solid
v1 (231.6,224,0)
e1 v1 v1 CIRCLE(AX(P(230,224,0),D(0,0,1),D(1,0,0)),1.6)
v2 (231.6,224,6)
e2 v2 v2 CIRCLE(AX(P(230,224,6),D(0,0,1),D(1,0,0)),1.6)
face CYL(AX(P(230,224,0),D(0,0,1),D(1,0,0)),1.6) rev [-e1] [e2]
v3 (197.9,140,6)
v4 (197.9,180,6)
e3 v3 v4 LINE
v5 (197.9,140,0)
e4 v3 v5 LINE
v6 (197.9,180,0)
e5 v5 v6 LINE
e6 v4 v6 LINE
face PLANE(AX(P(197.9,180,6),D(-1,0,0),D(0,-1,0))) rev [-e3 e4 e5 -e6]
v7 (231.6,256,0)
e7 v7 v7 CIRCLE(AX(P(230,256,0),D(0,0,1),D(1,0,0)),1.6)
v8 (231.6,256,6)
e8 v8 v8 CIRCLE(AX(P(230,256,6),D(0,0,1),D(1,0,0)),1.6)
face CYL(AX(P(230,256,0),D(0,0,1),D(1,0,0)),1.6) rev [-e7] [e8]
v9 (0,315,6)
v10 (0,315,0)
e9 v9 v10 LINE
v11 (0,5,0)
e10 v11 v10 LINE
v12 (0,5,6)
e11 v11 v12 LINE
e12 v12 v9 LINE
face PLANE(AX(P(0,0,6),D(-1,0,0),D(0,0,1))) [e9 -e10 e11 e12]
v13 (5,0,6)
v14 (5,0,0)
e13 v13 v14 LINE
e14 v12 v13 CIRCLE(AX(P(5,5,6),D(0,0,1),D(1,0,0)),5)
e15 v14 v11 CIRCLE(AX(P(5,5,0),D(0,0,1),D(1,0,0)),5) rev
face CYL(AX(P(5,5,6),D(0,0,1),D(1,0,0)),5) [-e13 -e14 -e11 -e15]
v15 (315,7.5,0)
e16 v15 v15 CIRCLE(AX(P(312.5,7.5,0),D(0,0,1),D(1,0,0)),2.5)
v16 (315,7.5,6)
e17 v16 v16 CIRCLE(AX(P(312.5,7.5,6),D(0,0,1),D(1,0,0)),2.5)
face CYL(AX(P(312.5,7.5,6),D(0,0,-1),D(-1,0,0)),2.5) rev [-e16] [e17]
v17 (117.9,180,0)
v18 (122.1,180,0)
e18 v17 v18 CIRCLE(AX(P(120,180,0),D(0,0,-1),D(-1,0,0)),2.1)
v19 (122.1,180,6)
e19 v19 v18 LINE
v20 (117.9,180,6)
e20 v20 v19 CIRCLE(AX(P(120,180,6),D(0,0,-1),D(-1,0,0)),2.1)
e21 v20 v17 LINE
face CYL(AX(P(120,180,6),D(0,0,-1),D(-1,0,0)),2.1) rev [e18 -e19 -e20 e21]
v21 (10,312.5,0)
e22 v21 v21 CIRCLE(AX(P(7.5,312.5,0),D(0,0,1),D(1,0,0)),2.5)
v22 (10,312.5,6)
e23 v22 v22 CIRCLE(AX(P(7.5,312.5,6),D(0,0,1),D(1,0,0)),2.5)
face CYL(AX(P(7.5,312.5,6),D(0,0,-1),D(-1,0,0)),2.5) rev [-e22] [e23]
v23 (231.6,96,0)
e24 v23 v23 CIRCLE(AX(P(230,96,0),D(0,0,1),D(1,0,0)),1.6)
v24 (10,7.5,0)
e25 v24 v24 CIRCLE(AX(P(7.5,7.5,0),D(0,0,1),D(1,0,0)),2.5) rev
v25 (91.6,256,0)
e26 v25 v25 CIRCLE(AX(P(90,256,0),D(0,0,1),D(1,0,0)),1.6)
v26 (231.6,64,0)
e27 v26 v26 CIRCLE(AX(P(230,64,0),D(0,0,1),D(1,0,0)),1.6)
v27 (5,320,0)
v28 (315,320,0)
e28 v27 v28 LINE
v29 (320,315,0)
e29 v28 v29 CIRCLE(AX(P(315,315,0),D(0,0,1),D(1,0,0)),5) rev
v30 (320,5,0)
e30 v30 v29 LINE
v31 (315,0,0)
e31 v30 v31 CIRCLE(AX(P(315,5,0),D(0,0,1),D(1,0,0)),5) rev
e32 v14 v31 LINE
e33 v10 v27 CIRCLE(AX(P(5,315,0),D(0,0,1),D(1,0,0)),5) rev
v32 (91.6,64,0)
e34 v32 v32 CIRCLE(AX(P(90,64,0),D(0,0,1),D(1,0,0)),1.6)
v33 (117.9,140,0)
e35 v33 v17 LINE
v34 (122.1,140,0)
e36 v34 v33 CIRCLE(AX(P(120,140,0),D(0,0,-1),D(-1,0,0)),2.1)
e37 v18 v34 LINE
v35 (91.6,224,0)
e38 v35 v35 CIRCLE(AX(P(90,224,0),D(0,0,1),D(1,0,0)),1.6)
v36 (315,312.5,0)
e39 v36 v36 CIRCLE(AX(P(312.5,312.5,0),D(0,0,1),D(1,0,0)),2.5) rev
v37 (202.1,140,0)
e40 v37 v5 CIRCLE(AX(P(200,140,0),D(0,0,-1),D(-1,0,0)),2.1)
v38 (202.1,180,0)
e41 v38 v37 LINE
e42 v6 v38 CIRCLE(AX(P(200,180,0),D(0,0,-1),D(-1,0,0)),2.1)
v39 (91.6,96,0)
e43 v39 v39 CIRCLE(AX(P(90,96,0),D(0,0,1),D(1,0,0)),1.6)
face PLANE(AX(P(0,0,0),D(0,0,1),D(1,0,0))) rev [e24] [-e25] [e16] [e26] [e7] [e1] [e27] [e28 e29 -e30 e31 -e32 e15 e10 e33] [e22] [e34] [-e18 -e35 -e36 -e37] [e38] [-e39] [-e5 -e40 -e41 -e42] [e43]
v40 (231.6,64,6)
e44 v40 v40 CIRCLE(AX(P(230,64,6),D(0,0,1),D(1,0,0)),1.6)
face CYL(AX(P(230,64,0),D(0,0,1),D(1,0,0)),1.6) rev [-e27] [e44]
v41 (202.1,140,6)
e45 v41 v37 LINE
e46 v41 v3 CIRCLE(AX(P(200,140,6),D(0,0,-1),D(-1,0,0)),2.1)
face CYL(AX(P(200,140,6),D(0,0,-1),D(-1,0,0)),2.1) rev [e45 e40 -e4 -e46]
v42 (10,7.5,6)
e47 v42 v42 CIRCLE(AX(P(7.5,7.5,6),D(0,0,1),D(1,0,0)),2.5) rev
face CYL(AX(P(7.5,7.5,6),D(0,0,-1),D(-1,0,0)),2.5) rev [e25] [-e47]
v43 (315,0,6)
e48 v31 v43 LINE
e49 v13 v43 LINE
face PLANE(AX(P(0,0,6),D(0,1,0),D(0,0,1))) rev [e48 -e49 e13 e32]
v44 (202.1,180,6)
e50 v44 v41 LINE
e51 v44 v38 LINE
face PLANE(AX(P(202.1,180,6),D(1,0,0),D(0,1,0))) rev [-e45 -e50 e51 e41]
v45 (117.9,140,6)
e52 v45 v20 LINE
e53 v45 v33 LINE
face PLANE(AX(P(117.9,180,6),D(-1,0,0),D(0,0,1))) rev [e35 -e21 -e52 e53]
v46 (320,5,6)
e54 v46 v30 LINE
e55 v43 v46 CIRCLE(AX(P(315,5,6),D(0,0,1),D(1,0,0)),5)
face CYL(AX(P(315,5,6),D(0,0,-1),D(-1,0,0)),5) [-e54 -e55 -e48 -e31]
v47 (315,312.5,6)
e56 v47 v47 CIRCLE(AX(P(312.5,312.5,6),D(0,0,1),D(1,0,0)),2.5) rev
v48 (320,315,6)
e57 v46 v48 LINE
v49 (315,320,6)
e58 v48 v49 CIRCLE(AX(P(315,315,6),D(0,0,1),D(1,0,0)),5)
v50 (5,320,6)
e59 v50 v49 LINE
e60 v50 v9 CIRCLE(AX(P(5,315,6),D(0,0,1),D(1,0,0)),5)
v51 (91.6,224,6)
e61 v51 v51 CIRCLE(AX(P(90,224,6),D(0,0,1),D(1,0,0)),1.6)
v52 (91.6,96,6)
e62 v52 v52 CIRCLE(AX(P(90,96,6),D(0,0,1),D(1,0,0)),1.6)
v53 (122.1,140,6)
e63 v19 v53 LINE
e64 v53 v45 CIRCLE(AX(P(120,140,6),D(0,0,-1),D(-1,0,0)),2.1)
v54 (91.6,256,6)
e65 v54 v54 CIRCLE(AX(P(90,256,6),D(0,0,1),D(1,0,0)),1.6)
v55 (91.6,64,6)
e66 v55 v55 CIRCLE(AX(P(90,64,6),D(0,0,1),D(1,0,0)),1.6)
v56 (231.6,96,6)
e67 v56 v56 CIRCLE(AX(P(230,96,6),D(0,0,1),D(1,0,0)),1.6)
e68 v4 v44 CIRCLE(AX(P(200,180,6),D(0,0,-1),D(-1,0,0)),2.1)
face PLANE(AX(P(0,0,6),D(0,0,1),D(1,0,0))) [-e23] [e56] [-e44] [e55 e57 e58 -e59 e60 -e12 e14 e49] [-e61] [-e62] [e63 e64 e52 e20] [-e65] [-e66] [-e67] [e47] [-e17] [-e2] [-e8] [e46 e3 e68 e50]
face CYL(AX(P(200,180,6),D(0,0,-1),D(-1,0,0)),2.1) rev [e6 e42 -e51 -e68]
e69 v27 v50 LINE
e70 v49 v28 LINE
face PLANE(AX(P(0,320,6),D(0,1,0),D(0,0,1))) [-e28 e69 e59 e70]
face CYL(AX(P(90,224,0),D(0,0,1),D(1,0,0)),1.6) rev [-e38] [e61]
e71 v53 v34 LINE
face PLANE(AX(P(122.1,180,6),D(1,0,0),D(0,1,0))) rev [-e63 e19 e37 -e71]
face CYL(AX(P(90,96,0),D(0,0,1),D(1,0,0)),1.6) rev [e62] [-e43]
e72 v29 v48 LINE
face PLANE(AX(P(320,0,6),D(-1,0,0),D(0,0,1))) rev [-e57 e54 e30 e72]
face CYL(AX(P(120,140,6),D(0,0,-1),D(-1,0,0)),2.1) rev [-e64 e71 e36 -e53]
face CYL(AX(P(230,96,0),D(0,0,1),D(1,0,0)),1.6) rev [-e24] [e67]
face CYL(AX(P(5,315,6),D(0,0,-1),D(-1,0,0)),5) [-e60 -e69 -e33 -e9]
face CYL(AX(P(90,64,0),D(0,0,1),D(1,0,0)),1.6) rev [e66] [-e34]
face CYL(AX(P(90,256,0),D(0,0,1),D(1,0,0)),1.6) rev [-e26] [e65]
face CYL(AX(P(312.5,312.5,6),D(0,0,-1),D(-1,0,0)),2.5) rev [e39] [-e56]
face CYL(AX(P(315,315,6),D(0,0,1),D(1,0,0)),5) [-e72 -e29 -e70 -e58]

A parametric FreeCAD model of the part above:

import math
import FreeCAD as App
import Part
import Sketcher

V = App.Vector
Q = App.Units.Quantity


def edges_at(feature, points):
    """Names of the edges that pass closest to the given points."""
    edges = feature.Shape.Edges
    near = lambda p: min(range(len(edges)), key=lambda i: edges[i].distToShape(Part.Vertex(*p))[0])
    return sorted({f"Edge{near(p) + 1}" for p in points})


def add_polygon(sketch, points):
    """Adds a closed chain of lines whose ends are joined by coincident constraints."""
    first, n = sketch.GeometryCount, len(points)
    for a, b in zip(points, points[1:] + points[:1]):
        sketch.addGeometry(Part.LineSegment(App.Vector(*a, 0), App.Vector(*b, 0)), False)
    for i in range(n):
        sketch.addConstraint(Sketcher.Constraint("Coincident", first + i, 2, first + (i + 1) % n, 1))

doc = App.newDocument("Part")
params = doc.addObject("Spreadsheet::Sheet", "Params")
for row, (alias, value) in enumerate([
    ("sketch1_diameter", "5 mm"),
    ("sketch1_width", "320 mm"),
    ("pad1_length", "6 mm"),
    ("fillet_radius", "5 mm"),
    ("fillet2_radius", "5 mm"),
    ("fillet3_radius", "5 mm"),
    ("fillet4_radius", "5 mm"),
    ("sketch2_diameter", "3.2 mm"),
    ("sketch3_radius", "2.1 mm"),
    ("sketch3_height", "40 mm"),
], start=1):
    params.set(f"A{row}", alias)
    params.set(f"B{row}", "=" + value)
    params.setAlias(f"B{row}", alias)

body = doc.addObject("PartDesign::Body", "Body")

sketch1 = body.newObject("Sketcher::SketchObject", "Sketch")
sketch1.AttachmentSupport = (doc.getObject("XY_Plane"), [""])
sketch1.MapMode = "FlatFace"
add_polygon(sketch1, [(0, 320), (0, 0), (320, 0), (320, 320)])
sketch1.addGeometry(Part.Circle(V(7.5, 7.5, 0), V(0, 0, 1), 2.5), False)
sketch1.addGeometry(Part.Circle(V(312.5, 7.5, 0), V(0, 0, 1), 2.5), False)
sketch1.addGeometry(Part.Circle(V(7.5, 312.5, 0), V(0, 0, 1), 2.5), False)
sketch1.addGeometry(Part.Circle(V(312.5, 312.5, 0), V(0, 0, 1), 2.5), False)
sketch1.addConstraint([
    Sketcher.Constraint("Vertical", 0),
    Sketcher.Constraint("Horizontal", 1),
    Sketcher.Constraint("Vertical", 2),
    Sketcher.Constraint("Horizontal", 3),
    Sketcher.Constraint("Coincident", 0, 2, -1, 1),
    Sketcher.Constraint("Equal", 4, 5),
    Sketcher.Constraint("Equal", 5, 6),
    Sketcher.Constraint("Equal", 6, 7),
    Sketcher.Constraint("Horizontal", 4, 3, 5, 3),
    Sketcher.Constraint("Horizontal", 6, 3, 7, 3),
    Sketcher.Constraint("Vertical", 4, 3, 6, 3),
    Sketcher.Constraint("Vertical", 5, 3, 7, 3),
    Sketcher.Constraint("Equal", 3, 0),
    Sketcher.Constraint("Diameter", 4, Q("5 mm")),
    Sketcher.Constraint("DistanceX", 1, 1, 1, 2, Q("320 mm")),
    Sketcher.Constraint("DistanceX", 4, 3, 5, 3, Q("305 mm")),
    Sketcher.Constraint("DistanceY", 4, 3, 6, 3, Q("305 mm")),
    Sketcher.Constraint("DistanceX", -1, 1, 4, 3, Q("7.5 mm")),
    Sketcher.Constraint("DistanceY", -1, 1, 4, 3, Q("7.5 mm")),
])
sketch1.setExpression("Constraints[17]", "Params.sketch1_diameter")
sketch1.setExpression("Constraints[18]", "Params.sketch1_width")
pad1 = body.newObject("PartDesign::Pad", "Pad")
pad1.Profile = sketch1
pad1.setExpression("Length", "Params.pad1_length")
doc.recompute()

fillet = body.newObject("PartDesign::Fillet", "Fillet")
fillet.Base = (pad1, edges_at(pad1, [(0, 320, 3)]))
fillet.setExpression("Radius", "Params.fillet_radius")
doc.recompute()

fillet2 = body.newObject("PartDesign::Fillet", "Fillet001")
fillet2.Base = (fillet, edges_at(fillet, [(0, 0, 3)]))
fillet2.setExpression("Radius", "Params.fillet2_radius")
doc.recompute()

fillet3 = body.newObject("PartDesign::Fillet", "Fillet002")
fillet3.Base = (fillet2, edges_at(fillet2, [(320, 320, 3)]))
fillet3.setExpression("Radius", "Params.fillet3_radius")
doc.recompute()

fillet4 = body.newObject("PartDesign::Fillet", "Fillet003")
fillet4.Base = (fillet3, edges_at(fillet3, [(320, 0, 3)]))
fillet4.setExpression("Radius", "Params.fillet4_radius")

sketch2 = body.newObject("Sketcher::SketchObject", "Sketch001")
sketch2.AttachmentSupport = (doc.getObject("XY_Plane"), [""])
sketch2.MapMode = "FlatFace"
sketch2.AttachmentOffset = App.Placement(V(0, 0, 6), App.Rotation())
sketch2.addGeometry([
    Part.Circle(V(90, 224, 0), V(0, 0, 1), 1.6),
    Part.Circle(V(230, 224, 0), V(0, 0, 1), 1.6),
    Part.Circle(V(90, 96, 0), V(0, 0, 1), 1.6),
    Part.Circle(V(230, 96, 0), V(0, 0, 1), 1.6),
    Part.Circle(V(90, 256, 0), V(0, 0, 1), 1.6),
    Part.Circle(V(90, 64, 0), V(0, 0, 1), 1.6),
    Part.Circle(V(230, 64, 0), V(0, 0, 1), 1.6),
    Part.Circle(V(230, 256, 0), V(0, 0, 1), 1.6),
], False)
sketch2.addConstraint([
    Sketcher.Constraint("Equal", 0, 1),
    Sketcher.Constraint("Equal", 1, 2),
    Sketcher.Constraint("Equal", 2, 3),
    Sketcher.Constraint("Equal", 3, 4),
    Sketcher.Constraint("Equal", 4, 5),
    Sketcher.Constraint("Equal", 5, 6),
    Sketcher.Constraint("Equal", 6, 7),
    Sketcher.Constraint("Horizontal", 0, 3, 1, 3),
    Sketcher.Constraint("Horizontal", 2, 3, 3, 3),
    Sketcher.Constraint("Horizontal", 5, 3, 6, 3),
    Sketcher.Constraint("Horizontal", 4, 3, 7, 3),
    Sketcher.Constraint("Vertical", 0, 3, 2, 3),
    Sketcher.Constraint("Vertical", 1, 3, 3, 3),
    Sketcher.Constraint("Vertical", 2, 3, 4, 3),
    Sketcher.Constraint("Vertical", 4, 3, 5, 3),
    Sketcher.Constraint("Vertical", 3, 3, 6, 3),
    Sketcher.Constraint("Vertical", 6, 3, 7, 3),
    Sketcher.Constraint("Diameter", 0, Q("3.2 mm")),
    Sketcher.Constraint("DistanceX", -1, 1, 0, 3, Q("90 mm")),
    Sketcher.Constraint("DistanceY", -1, 1, 0, 3, Q("224 mm")),
    Sketcher.Constraint("DistanceX", -1, 1, 1, 3, Q("230 mm")),
    Sketcher.Constraint("DistanceY", -1, 1, 2, 3, Q("96 mm")),
    Sketcher.Constraint("DistanceY", -1, 1, 4, 3, Q("256 mm")),
    Sketcher.Constraint("DistanceY", -1, 1, 5, 3, Q("64 mm")),
])
sketch2.setExpression("Constraints[17]", "Params.sketch2_diameter")
pocket1 = body.newObject("PartDesign::Pocket", "Pocket")
pocket1.Profile = sketch2
pocket1.Type = "ThroughAll"

sketch3 = body.newObject("Sketcher::SketchObject", "Sketch002")
sketch3.AttachmentSupport = (doc.getObject("XY_Plane"), [""])
sketch3.MapMode = "FlatFace"
sketch3.addGeometry([
    Part.LineSegment(V(197.9, 140, 0), V(197.9, 180, 0)),
    Part.ArcOfCircle(Part.Circle(V(200, 180, 0), V(0, 0, 1), 2.1), math.radians(0), math.radians(180)),
    Part.LineSegment(V(202.1, 180, 0), V(202.1, 140, 0)),
    Part.ArcOfCircle(Part.Circle(V(200, 140, 0), V(0, 0, 1), 2.1), math.radians(180), math.radians(360)),
    Part.LineSegment(V(117.9, 140, 0), V(117.9, 180, 0)),
    Part.ArcOfCircle(Part.Circle(V(120, 180, 0), V(0, 0, 1), 2.1), math.radians(0), math.radians(180)),
    Part.LineSegment(V(122.1, 180, 0), V(122.1, 140, 0)),
    Part.ArcOfCircle(Part.Circle(V(120, 140, 0), V(0, 0, 1), 2.1), math.radians(180), math.radians(360)),
], False)
sketch3.addConstraint([
    Sketcher.Constraint("Tangent", 0, 2, 1, 2),
    Sketcher.Constraint("Tangent", 1, 1, 2, 1),
    Sketcher.Constraint("Tangent", 2, 2, 3, 2),
    Sketcher.Constraint("Tangent", 3, 1, 0, 1),
    Sketcher.Constraint("Tangent", 4, 2, 5, 2),
    Sketcher.Constraint("Tangent", 5, 1, 6, 1),
    Sketcher.Constraint("Tangent", 6, 2, 7, 2),
    Sketcher.Constraint("Tangent", 7, 1, 4, 1),
    Sketcher.Constraint("Vertical", 0),
    Sketcher.Constraint("Vertical", 2),
    Sketcher.Constraint("Vertical", 4),
    Sketcher.Constraint("Vertical", 6),
    Sketcher.Constraint("Equal", 3, 5),
    Sketcher.Constraint("Horizontal", 1, 3, 5, 3),
    Sketcher.Constraint("Horizontal", 3, 3, 7, 3),
    Sketcher.Constraint("Radius", 1, Q("2.1 mm")),
    Sketcher.Constraint("DistanceY", 0, 1, 0, 2, Q("40 mm")),
    Sketcher.Constraint("DistanceX", -1, 1, 1, 3, Q("200 mm")),
    Sketcher.Constraint("DistanceY", -1, 1, 1, 3, Q("180 mm")),
    Sketcher.Constraint("DistanceX", -1, 1, 5, 3, Q("120 mm")),
])
sketch3.setExpression("Constraints[15]", "Params.sketch3_radius")
sketch3.setExpression("Constraints[16]", "Params.sketch3_height")
pocket2 = body.newObject("PartDesign::Pocket", "Pocket001")
pocket2.Profile = sketch3
pocket2.Type = "ThroughAll"
pocket2.Reversed = True

doc.recompute()
